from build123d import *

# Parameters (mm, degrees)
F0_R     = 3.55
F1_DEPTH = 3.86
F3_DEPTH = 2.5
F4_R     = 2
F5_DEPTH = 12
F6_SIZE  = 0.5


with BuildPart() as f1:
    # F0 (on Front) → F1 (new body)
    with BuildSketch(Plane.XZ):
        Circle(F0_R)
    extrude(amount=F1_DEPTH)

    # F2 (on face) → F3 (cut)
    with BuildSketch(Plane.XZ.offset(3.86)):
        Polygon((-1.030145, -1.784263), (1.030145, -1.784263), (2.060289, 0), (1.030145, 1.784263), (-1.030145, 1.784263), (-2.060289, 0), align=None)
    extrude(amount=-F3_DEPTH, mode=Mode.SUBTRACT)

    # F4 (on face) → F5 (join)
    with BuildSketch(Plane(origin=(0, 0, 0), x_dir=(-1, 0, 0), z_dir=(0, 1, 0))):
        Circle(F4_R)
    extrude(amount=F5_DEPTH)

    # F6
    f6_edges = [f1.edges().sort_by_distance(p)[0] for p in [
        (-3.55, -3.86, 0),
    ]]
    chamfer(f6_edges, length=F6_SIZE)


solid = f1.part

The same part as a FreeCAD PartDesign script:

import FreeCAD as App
import Part
import Sketcher
from FreeCAD import Vector
Q = App.Units.Quantity


def edges_at(feature, points):
    """Names of the edges that pass closest to the given points."""
    edges = feature.Shape.Edges
    near = lambda p: min(range(len(edges)), key=lambda i: edges[i].distToShape(Part.Vertex(*p))[0])
    return sorted({f"Edge{near(p) + 1}" for p in points})

doc = App.newDocument("Part")
body = doc.addObject("PartDesign::Body", "Body")

sketch1 = body.newObject("Sketcher::SketchObject", "Sketch")
sketch1.AttachmentSupport = (doc.getObject("XZ_Plane"), [""])
sketch1.MapMode = "FlatFace"
sketch1.addGeometry(Part.Circle(Vector(0, 0, 0), Vector(0, 0, 1), 3.5), False)
sketch1.addConstraint([
    Sketcher.Constraint("Coincident", 0, 3, -1, 1),
    Sketcher.Constraint("Diameter", 0, 7.1),
])
pad1 = body.newObject("PartDesign::Pad", "Pad")
pad1.Profile = sketch1
pad1.Length = 3.86

sketch2 = body.newObject("Sketcher::SketchObject", "Sketch001")
sketch2.AttachmentSupport = (doc.getObject("XZ_Plane"), [""])
sketch2.MapMode = "FlatFace"
sketch2.AttachmentOffset = App.Placement(Vector(0, 0, 3.86), App.Rotation())
sketch2.addGeometry([
    Part.LineSegment(Vector(-1, -1.8, 0), Vector(1, -1.8, 0)),
    Part.LineSegment(Vector(1, -1.8, 0), Vector(2.1, 0, 0)),
    Part.LineSegment(Vector(2.1, 0, 0), Vector(1, 1.8, 0)),
    Part.LineSegment(Vector(1, 1.8, 0), Vector(-1, 1.8, 0)),
    Part.LineSegment(Vector(-1, 1.8, 0), Vector(-2.1, 0, 0)),
    Part.LineSegment(Vector(-2.1, 0, 0), Vector(-1, -1.8, 0)),
], False)
sketch2.addConstraint([
    Sketcher.Constraint("Coincident", 0, 2, 1, 1),
    Sketcher.Constraint("Coincident", 1, 2, 2, 1),
    Sketcher.Constraint("Coincident", 2, 2, 3, 1),
    Sketcher.Constraint("Coincident", 3, 2, 4, 1),
    Sketcher.Constraint("Coincident", 4, 2, 5, 1),
    Sketcher.Constraint("Coincident", 5, 2, 0, 1),
    Sketcher.Constraint("Horizontal", 0),
    Sketcher.Constraint("Horizontal", 3),
    Sketcher.Constraint("Symmetric", 0, 2, 3, 2, -1, 1),
    Sketcher.Constraint("Symmetric", 1, 2, 4, 2, -1, 1),
    Sketcher.Constraint("PointOnObject", 1, 2, -1),
    Sketcher.Constraint("Parallel", 2, 5),
    Sketcher.Constraint("Vertical", 0, 2, 2, 2),
    Sketcher.Constraint("Angle", 1, Q("60.000017 deg")),
    Sketcher.Constraint("DistanceX", 0, 1, 0, 2, 2.06029),
    Sketcher.Constraint("Distance", 1, 2.060289),
])
pocket1 = body.newObject("PartDesign::Pocket", "Pocket")
pocket1.Profile = sketch2
pocket1.Length = 2.5

sketch3 = body.newObject("Sketcher::SketchObject", "Sketch002")
sketch3.AttachmentSupport = (doc.getObject("XZ_Plane"), [""])
sketch3.MapMode = "FlatFace"
sketch3.addGeometry(Part.Circle(Vector(0, 0, 0), Vector(0, 0, 1), 2), False)
sketch3.addConstraint([
    Sketcher.Constraint("Coincident", 0, 3, -1, 1),
    Sketcher.Constraint("Diameter", 0, 4.0),
])
pad2 = body.newObject("PartDesign::Pad", "Pad001")
pad2.Profile = sketch3
pad2.Length = 12
pad2.Reversed = True
doc.recompute()

chamfer = body.newObject("PartDesign::Chamfer", "Chamfer")
chamfer.Base = (pad2, edges_at(pad2, [(-3.55, -3.86, 0)]))
chamfer.Size = 0.5

doc.recompute()
